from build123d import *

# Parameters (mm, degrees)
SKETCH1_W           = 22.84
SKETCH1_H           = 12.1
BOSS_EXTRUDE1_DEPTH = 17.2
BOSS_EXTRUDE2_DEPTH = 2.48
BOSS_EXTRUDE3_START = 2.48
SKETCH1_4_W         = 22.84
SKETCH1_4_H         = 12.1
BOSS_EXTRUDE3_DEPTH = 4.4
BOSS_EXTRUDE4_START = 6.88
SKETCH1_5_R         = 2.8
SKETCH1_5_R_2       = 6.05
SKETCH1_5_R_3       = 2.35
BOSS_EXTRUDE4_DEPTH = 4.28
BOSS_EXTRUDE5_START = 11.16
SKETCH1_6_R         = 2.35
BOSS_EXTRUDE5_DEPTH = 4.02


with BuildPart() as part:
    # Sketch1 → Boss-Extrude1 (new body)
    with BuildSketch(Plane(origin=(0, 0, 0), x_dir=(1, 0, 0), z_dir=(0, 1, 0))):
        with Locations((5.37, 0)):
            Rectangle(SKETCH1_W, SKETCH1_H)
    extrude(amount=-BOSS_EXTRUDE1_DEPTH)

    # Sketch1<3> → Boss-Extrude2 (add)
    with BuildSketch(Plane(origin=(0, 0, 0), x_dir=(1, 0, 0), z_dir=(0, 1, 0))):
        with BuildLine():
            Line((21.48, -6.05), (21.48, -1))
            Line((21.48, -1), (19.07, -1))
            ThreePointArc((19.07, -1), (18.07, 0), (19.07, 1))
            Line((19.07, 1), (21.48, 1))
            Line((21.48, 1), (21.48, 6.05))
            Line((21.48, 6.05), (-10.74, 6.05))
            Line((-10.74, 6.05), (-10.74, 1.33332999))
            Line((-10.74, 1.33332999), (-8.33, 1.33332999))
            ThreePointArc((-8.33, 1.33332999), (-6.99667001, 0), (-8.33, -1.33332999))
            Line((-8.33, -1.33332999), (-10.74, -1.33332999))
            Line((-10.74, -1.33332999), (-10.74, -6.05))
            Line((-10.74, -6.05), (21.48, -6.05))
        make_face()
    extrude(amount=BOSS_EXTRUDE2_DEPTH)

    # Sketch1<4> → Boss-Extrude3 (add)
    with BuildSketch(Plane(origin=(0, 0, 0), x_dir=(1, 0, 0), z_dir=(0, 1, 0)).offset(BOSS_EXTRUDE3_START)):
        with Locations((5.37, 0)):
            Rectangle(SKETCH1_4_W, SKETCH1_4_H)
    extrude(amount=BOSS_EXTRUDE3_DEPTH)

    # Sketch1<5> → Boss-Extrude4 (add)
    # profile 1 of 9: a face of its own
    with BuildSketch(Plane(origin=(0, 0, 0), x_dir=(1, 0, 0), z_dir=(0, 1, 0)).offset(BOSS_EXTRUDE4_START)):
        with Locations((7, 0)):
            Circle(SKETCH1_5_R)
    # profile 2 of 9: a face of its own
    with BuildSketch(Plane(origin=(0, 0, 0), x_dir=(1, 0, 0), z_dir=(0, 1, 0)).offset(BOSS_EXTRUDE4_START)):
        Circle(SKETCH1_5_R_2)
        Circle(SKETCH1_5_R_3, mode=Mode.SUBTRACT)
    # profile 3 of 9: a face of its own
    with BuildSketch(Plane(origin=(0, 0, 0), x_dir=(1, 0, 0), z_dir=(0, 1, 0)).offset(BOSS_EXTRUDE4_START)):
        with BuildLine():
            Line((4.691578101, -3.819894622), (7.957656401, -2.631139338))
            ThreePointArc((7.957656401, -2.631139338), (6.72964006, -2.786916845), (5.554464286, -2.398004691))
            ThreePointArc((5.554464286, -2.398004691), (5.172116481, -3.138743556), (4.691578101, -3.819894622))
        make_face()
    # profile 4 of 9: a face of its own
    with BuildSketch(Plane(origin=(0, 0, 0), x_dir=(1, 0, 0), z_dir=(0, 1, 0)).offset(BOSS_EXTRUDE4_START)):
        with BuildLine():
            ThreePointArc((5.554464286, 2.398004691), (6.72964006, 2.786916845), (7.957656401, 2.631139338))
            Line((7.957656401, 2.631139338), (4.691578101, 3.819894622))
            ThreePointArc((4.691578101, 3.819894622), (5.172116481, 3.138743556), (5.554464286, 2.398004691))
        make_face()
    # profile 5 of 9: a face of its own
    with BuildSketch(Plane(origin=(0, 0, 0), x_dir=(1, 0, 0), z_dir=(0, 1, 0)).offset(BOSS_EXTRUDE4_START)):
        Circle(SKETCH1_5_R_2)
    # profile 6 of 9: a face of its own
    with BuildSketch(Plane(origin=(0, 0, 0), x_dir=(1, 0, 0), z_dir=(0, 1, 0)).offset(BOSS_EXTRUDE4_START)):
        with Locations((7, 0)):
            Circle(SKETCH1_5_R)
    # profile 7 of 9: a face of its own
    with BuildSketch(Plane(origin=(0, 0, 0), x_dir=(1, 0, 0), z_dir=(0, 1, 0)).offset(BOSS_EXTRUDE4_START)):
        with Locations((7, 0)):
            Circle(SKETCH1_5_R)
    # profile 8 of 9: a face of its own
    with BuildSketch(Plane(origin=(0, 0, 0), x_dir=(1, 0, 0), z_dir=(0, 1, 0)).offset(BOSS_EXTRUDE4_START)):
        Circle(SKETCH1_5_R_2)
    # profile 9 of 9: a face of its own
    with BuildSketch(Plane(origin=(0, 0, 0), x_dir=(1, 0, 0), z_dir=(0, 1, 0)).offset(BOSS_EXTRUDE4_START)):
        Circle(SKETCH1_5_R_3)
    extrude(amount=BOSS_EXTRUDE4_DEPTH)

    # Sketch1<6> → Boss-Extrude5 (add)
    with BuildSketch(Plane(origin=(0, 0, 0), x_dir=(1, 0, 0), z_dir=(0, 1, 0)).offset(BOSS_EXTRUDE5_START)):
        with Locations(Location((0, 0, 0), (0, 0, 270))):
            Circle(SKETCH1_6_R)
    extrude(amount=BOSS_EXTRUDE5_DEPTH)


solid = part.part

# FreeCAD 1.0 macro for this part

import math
import FreeCAD as App
import Part
import Sketcher
Q = App.Units.Quantity

doc = App.newDocument("Part")
body = doc.addObject("PartDesign::Body", "Body")

sketch1 = doc.addObject("Sketcher::SketchObject", "Sketch")
body.addObject(sketch1)
sketch1.AttachmentSupport = (doc.XZ_Plane, [""])
sketch1.MapMode = "FlatFace"
sketch1.addGeometry([
    Part.LineSegment(App.Vector(-6, -6, 0), App.Vector(-6, 6, 0)),
    Part.LineSegment(App.Vector(-6, 6, 0), App.Vector(17, 6, 0)),
    Part.LineSegment(App.Vector(17, 6, 0), App.Vector(17, -6, 0)),
    Part.LineSegment(App.Vector(17, -6, 0), App.Vector(-6, -6, 0)),
], False)
sketch1.addConstraint([
    Sketcher.Constraint("Coincident", 0, 2, 1, 1),
    Sketcher.Constraint("Coincident", 1, 2, 2, 1),
    Sketcher.Constraint("Coincident", 2, 2, 3, 1),
    Sketcher.Constraint("Coincident", 3, 2, 0, 1),
    Sketcher.Constraint("Vertical", 0),
    Sketcher.Constraint("Horizontal", 1),
    Sketcher.Constraint("Vertical", 2),
    Sketcher.Constraint("Horizontal", 3),
    Sketcher.Constraint("DistanceY", 0, 1, 0, 2, Q("12.1 mm")),
    Sketcher.Constraint("DistanceX", 1, 1, 1, 2, Q("22.84 mm")),
    Sketcher.Constraint("DistanceX", 0, 2, -1, 1, Q("6.05 mm")),
    Sketcher.Constraint("DistanceY", -1, 1, 0, 2, Q("6.05 mm")),
])
pad1 = doc.addObject("PartDesign::Pad", "Pad")
body.addObject(pad1)
pad1.Profile = sketch1
pad1.Length = 17.2

sketch2 = doc.addObject("Sketcher::SketchObject", "Sketch001")
body.addObject(sketch2)
sketch2.AttachmentSupport = (doc.XZ_Plane, [""])
sketch2.MapMode = "FlatFace"
sketch2.addGeometry([
    Part.LineSegment(App.Vector(21.5, 6, 0), App.Vector(21.5, 1, 0)),
    Part.LineSegment(App.Vector(21.5, 1, 0), App.Vector(19.1, 1, 0)),
    Part.ArcOfCircle(Part.Circle(App.Vector(19.1, 0, 0), App.Vector(0, 0, 1), 1), math.radians(90), math.radians(270)),
    Part.LineSegment(App.Vector(19.1, -1, 0), App.Vector(21.5, -1, 0)),
    Part.LineSegment(App.Vector(21.5, -1, 0), App.Vector(21.5, -6, 0)),
    Part.LineSegment(App.Vector(21.5, -6, 0), App.Vector(-10.7, -6, 0)),
    Part.LineSegment(App.Vector(-10.7, -6, 0), App.Vector(-10.7, -1.3, 0)),
    Part.LineSegment(App.Vector(-10.7, -1.3, 0), App.Vector(-8.3, -1.3, 0)),
    Part.ArcOfCircle(Part.Circle(App.Vector(-8.3, 0, 0), App.Vector(0, 0, 1), 1.3), math.radians(-90), math.radians(90)),
    Part.LineSegment(App.Vector(-8.3, 1.3, 0), App.Vector(-10.7, 1.3, 0)),
    Part.LineSegment(App.Vector(-10.7, 1.3, 0), App.Vector(-10.7, 6, 0)),
    Part.LineSegment(App.Vector(-10.7, 6, 0), App.Vector(21.5, 6, 0)),
], False)
sketch2.addConstraint([
    Sketcher.Constraint("Coincident", 0, 2, 1, 1),
    Sketcher.Constraint("Tangent", 1, 2, 2, 1),
    Sketcher.Constraint("Tangent", 2, 2, 3, 1),
    Sketcher.Constraint("Coincident", 3, 2, 4, 1),
    Sketcher.Constraint("Coincident", 4, 2, 5, 1),
    Sketcher.Constraint("Coincident", 5, 2, 6, 1),
    Sketcher.Constraint("Coincident", 6, 2, 7, 1),
    Sketcher.Constraint("Tangent", 7, 2, 8, 1),
    Sketcher.Constraint("Tangent", 8, 2, 9, 1),
    Sketcher.Constraint("Coincident", 9, 2, 10, 1),
    Sketcher.Constraint("Coincident", 10, 2, 11, 1),
    Sketcher.Constraint("Coincident", 11, 2, 0, 1),
    Sketcher.Constraint("Vertical", 0),
    Sketcher.Constraint("Horizontal", 1),
    Sketcher.Constraint("Horizontal", 3),
    Sketcher.Constraint("Vertical", 4),
    Sketcher.Constraint("Horizontal", 5),
    Sketcher.Constraint("Vertical", 6),
    Sketcher.Constraint("Horizontal", 7),
    Sketcher.Constraint("Horizontal", 9),
    Sketcher.Constraint("Vertical", 10),
    Sketcher.Constraint("Horizontal", 11),
    Sketcher.Constraint("Symmetric", 0, 2, 3, 2, -1),
    Sketcher.Constraint("Symmetric", 6, 2, 9, 2, -1),
    Sketcher.Constraint("Equal", 3, 7),
    Sketcher.Constraint("Equal", 0, 4),
    Sketcher.Constraint("Radius", 2, Q("1 mm")),
    Sketcher.Constraint("DistanceX", 1, 2, 1, 1, Q("2.41 mm")),
    Sketcher.Constraint("DistanceX", 5, 2, 5, 1, Q("32.22 mm")),
    Sketcher.Constraint("DistanceY", 0, 2, 0, 1, Q("5.05 mm")),
    Sketcher.Constraint("DistanceX", -1, 1, 2, 3, Q("19.07 mm")),
    Sketcher.Constraint("Radius", 8, Q("1.33333 mm")),
])
pad2 = doc.addObject("PartDesign::Pad", "Pad001")
body.addObject(pad2)
pad2.Profile = sketch2
pad2.Length = 2.48
pad2.Reversed = True

sketch3 = doc.addObject("Sketcher::SketchObject", "Sketch002")
body.addObject(sketch3)
sketch3.AttachmentSupport = (doc.XZ_Plane, [""])
sketch3.MapMode = "FlatFace"
sketch3.AttachmentOffset = App.Placement(App.Vector(0, 0, -2.48), App.Rotation())
sketch3.addGeometry([
    Part.LineSegment(App.Vector(-6, -6, 0), App.Vector(-6, 6, 0)),
    Part.LineSegment(App.Vector(-6, 6, 0), App.Vector(17, 6, 0)),
    Part.LineSegment(App.Vector(17, 6, 0), App.Vector(17, -6, 0)),
    Part.LineSegment(App.Vector(17, -6, 0), App.Vector(-6, -6, 0)),
], False)
sketch3.addConstraint([
    Sketcher.Constraint("Coincident", 0, 2, 1, 1),
    Sketcher.Constraint("Coincident", 1, 2, 2, 1),
    Sketcher.Constraint("Coincident", 2, 2, 3, 1),
    Sketcher.Constraint("Coincident", 3, 2, 0, 1),
    Sketcher.Constraint("Vertical", 0),
    Sketcher.Constraint("Horizontal", 1),
    Sketcher.Constraint("Vertical", 2),
    Sketcher.Constraint("Horizontal", 3),
    Sketcher.Constraint("DistanceY", 0, 1, 0, 2, Q("12.1 mm")),
    Sketcher.Constraint("DistanceX", 1, 1, 1, 2, Q("22.84 mm")),
    Sketcher.Constraint("DistanceX", 0, 2, -1, 1, Q("6.05 mm")),
    Sketcher.Constraint("DistanceY", -1, 1, 0, 2, Q("6.05 mm")),
])
pad3 = doc.addObject("PartDesign::Pad", "Pad002")
body.addObject(pad3)
pad3.Profile = sketch3
pad3.Length = 4.4
pad3.Reversed = True

sketch4 = doc.addObject("Sketcher::SketchObject", "Sketch003")
body.addObject(sketch4)
sketch4.AttachmentSupport = (doc.XZ_Plane, [""])
sketch4.MapMode = "FlatFace"
sketch4.AttachmentOffset = App.Placement(App.Vector(0, 0, -6.88), App.Rotation())
sketch4.addGeometry([
    Part.ArcOfCircle(Part.Circle(App.Vector(7, 0, 0), App.Vector(0, 0, 1), 2.8), math.radians(-70), math.radians(70)),
    Part.LineSegment(App.Vector(8, -2.6, 0), App.Vector(4.7, -3.8, 0)),
    Part.ArcOfCircle(Part.Circle(App.Vector(0, 0, 0), App.Vector(0, 0, 1), 6), math.radians(39), math.radians(321)),
    Part.LineSegment(App.Vector(4.7, 3.8, 0), App.Vector(8, 2.6, 0)),
], False)
sketch4.addConstraint([
    Sketcher.Constraint("Tangent", 0, 1, 1, 1),
    Sketcher.Constraint("Coincident", 1, 2, 2, 2),
    Sketcher.Constraint("Coincident", 2, 1, 3, 1),
    Sketcher.Constraint("Tangent", 3, 2, 0, 2),
    Sketcher.Constraint("Coincident", 2, 3, -1, 1),
    Sketcher.Constraint("Symmetric", 0, 1, 3, 2, -1),
    Sketcher.Constraint("Radius", 0, Q("2.8 mm")),
    Sketcher.Constraint("Angle", 1, Q("-160 deg")),
    Sketcher.Constraint("Radius", 2, Q("6.05 mm")),
    Sketcher.Constraint("DistanceX", -1, 1, 0, 3, Q("7 mm")),
])
pad4 = doc.addObject("PartDesign::Pad", "Pad003")
body.addObject(pad4)
pad4.Profile = sketch4
pad4.Length = 4.28
pad4.Reversed = True

sketch5 = doc.addObject("Sketcher::SketchObject", "Sketch004")
body.addObject(sketch5)
sketch5.AttachmentSupport = (doc.XZ_Plane, [""])
sketch5.MapMode = "FlatFace"
sketch5.AttachmentOffset = App.Placement(App.Vector(0, 0, -11.16), App.Rotation())
sketch5.addGeometry(Part.Circle(App.Vector(0, 0, 0), App.Vector(0, 0, 1), 2.4), False)
sketch5.addConstraint([
    Sketcher.Constraint("Coincident", 0, 3, -1, 1),
    Sketcher.Constraint("Diameter", 0, Q("4.7 mm")),
])
pad5 = doc.addObject("PartDesign::Pad", "Pad004")
body.addObject(pad5)
pad5.Profile = sketch5
pad5.Length = 4.02
pad5.Reversed = True

doc.recompute()
